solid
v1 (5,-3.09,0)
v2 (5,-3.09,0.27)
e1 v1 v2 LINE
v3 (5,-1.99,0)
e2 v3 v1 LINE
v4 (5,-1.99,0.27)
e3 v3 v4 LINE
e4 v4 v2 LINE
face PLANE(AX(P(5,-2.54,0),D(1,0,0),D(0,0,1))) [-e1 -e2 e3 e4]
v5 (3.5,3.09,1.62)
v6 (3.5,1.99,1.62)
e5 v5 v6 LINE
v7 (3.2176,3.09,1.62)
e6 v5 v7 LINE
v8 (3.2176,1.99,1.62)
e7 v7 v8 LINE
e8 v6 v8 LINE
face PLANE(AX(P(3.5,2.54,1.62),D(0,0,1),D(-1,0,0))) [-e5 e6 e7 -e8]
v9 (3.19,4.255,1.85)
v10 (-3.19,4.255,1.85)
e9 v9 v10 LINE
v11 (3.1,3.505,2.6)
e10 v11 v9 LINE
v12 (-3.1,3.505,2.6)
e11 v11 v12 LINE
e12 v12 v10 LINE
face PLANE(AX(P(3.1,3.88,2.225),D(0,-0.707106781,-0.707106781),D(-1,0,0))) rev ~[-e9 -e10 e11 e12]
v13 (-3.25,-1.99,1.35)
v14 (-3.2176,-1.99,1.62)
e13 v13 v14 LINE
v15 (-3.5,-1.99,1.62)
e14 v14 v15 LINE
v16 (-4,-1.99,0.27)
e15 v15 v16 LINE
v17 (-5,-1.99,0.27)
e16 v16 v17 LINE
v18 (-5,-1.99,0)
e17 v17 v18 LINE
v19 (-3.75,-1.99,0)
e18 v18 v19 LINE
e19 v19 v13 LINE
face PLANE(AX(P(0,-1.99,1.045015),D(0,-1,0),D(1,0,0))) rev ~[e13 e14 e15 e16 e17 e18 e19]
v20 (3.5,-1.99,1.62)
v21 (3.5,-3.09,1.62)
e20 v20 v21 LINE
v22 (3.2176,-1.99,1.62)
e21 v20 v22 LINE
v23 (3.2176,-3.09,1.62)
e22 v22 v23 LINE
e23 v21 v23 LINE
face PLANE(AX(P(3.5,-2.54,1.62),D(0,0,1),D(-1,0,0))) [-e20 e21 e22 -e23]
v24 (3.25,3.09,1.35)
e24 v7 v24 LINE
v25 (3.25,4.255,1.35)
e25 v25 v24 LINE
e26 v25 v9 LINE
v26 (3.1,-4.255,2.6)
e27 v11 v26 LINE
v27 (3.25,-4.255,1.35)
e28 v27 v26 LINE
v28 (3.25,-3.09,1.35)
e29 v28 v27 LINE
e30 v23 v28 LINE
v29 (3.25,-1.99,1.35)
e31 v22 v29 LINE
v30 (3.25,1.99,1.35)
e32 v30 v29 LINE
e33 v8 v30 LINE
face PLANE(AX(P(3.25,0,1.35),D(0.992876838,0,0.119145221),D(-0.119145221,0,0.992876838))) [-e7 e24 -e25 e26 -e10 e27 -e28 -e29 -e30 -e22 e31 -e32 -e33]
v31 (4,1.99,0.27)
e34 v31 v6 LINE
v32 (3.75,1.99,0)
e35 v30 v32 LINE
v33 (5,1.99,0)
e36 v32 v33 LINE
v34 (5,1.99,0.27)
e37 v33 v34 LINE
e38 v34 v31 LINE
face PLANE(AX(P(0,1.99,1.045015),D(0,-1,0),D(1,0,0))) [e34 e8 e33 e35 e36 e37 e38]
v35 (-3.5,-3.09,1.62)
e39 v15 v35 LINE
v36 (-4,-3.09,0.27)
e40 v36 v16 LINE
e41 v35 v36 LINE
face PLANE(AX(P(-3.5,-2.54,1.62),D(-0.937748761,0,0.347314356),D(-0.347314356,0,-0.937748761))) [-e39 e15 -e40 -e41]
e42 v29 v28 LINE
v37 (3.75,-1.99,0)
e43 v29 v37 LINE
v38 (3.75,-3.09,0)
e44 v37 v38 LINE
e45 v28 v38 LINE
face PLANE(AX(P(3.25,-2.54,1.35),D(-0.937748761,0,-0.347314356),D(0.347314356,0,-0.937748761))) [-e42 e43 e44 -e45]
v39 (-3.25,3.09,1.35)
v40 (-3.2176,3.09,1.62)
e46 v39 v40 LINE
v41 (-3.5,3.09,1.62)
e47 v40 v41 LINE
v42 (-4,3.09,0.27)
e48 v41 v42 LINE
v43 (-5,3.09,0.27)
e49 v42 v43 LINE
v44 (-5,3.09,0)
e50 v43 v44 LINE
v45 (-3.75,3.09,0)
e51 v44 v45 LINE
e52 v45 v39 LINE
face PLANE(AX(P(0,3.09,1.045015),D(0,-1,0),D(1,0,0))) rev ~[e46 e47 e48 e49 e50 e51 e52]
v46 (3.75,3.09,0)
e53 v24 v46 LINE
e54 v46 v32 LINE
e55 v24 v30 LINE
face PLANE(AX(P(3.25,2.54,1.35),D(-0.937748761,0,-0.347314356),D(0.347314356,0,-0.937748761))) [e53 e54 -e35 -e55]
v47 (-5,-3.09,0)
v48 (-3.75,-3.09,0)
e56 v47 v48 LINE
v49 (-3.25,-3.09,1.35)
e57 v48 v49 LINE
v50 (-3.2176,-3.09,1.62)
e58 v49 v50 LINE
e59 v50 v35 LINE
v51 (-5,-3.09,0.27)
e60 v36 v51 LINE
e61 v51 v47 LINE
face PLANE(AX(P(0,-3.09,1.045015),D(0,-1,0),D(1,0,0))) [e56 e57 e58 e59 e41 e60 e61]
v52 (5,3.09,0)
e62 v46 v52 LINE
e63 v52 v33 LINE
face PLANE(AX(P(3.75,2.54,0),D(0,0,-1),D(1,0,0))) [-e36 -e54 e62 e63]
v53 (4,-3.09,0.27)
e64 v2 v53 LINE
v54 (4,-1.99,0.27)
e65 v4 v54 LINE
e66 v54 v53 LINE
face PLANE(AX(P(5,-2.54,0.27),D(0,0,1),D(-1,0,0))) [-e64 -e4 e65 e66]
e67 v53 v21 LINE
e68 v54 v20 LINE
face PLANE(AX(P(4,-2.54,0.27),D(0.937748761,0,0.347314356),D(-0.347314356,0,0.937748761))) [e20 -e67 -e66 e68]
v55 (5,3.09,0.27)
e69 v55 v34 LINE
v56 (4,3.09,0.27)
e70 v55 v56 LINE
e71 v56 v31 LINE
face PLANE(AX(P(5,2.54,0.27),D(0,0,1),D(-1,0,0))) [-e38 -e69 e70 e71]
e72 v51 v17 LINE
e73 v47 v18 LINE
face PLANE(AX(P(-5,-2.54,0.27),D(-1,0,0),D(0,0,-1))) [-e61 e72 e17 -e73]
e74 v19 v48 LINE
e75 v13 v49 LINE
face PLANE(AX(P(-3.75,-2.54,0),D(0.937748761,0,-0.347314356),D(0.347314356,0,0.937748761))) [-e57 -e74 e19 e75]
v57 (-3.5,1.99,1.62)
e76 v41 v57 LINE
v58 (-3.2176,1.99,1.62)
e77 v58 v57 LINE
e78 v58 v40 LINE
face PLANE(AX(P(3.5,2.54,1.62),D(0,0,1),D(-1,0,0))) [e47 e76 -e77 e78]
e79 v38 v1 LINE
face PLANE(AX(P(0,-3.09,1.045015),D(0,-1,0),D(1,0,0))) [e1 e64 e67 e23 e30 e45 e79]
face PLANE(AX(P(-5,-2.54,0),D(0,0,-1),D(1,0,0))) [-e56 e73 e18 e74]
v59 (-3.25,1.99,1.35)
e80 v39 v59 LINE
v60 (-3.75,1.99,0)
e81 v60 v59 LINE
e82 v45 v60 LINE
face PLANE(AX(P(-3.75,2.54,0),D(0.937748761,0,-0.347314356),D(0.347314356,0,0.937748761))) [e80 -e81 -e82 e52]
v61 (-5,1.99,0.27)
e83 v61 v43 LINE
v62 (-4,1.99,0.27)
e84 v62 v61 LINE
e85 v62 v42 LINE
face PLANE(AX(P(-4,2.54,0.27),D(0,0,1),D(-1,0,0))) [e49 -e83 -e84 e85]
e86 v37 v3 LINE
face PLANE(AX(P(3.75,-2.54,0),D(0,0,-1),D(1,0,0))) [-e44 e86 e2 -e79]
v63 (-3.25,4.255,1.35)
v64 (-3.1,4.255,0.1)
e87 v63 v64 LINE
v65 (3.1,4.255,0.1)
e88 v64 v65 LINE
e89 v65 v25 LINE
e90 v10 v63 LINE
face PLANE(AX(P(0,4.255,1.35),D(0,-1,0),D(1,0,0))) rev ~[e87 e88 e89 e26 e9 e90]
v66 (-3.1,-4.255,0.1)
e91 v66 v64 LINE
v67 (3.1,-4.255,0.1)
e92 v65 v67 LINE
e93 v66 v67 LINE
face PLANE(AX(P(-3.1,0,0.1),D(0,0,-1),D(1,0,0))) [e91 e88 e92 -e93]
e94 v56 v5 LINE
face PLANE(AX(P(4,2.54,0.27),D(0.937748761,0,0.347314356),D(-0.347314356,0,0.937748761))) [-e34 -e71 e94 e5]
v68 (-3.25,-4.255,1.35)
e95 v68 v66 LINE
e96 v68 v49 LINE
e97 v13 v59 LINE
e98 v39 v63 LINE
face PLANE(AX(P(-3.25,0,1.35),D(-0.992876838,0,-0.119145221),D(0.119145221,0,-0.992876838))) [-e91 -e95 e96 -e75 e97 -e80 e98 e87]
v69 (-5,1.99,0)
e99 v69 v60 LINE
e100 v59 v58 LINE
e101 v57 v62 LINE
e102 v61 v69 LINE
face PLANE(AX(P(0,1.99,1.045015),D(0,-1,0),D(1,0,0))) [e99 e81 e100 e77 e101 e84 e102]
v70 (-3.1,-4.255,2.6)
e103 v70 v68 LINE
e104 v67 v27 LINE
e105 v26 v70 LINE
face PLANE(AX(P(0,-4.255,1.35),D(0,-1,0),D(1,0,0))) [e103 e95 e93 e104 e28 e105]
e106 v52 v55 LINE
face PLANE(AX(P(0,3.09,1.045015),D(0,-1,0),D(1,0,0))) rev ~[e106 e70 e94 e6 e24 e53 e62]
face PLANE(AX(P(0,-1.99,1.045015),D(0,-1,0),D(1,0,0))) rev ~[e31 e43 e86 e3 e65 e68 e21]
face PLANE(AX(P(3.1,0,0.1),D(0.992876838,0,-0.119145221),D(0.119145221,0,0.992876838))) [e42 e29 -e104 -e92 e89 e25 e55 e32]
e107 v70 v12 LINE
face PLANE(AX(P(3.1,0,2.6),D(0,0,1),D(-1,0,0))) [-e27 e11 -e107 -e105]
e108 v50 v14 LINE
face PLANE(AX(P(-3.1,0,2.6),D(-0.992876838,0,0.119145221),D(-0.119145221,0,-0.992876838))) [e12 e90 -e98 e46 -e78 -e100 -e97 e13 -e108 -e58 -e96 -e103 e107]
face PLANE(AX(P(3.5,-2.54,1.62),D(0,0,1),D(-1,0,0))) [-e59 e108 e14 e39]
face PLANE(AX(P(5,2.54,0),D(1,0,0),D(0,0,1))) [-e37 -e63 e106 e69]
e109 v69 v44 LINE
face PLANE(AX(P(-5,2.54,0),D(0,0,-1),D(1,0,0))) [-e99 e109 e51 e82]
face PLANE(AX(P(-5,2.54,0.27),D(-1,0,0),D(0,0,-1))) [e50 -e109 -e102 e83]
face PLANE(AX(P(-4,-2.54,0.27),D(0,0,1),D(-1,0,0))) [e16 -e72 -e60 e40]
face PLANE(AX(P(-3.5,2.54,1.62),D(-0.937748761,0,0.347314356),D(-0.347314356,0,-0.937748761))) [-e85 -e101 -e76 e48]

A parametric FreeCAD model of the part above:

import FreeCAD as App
import Part
import Sketcher
from FreeCAD import Vector


def edges_at(feature, points):
    """Names of the edges that pass closest to the given points."""
    edges = feature.Shape.Edges
    near = lambda p: min(range(len(edges)), key=lambda i: edges[i].distToShape(Part.Vertex(*p))[0])
    return sorted({f"Edge{near(p) + 1}" for p in points})


def add_polygon(sketch, points):
    """Adds a closed chain of lines whose ends are joined by coincident constraints."""
    first, n = sketch.GeometryCount, len(points)
    for a, b in zip(points, points[1:] + points[:1]):
        sketch.addGeometry(Part.LineSegment(App.Vector(*a, 0), App.Vector(*b, 0)), False)
    for i in range(n):
        sketch.addConstraint(Sketcher.Constraint("Coincident", first + i, 2, first + (i + 1) % n, 1))

doc = App.newDocument("Part")
body = doc.addObject("PartDesign::Body", "Body")

# Sketch on XZ plane
sketch1 = doc.addObject("Sketcher::SketchObject", "Sketch")
body.addObject(sketch1)
sketch1.AttachmentSupport = (doc.XZ_Plane, [""])
sketch1.MapMode = "FlatFace"
sketch1.AttachmentOffset = App.Placement(Vector(0, 0, 2.54), App.Rotation())
add_polygon(sketch1, [(-5, 0), (-3.75, 0), (-3.25, 1.35), (3.25, 1.35), (3.75, 0), (5, 0), (5, 0.27), (4, 0.27), (3.5, 1.62), (-3.5, 1.62), (-4, 0.27), (-5, 0.27)])  # lines 0-11
sketch1.addConstraint([
    Sketcher.Constraint("Horizontal", 0),
    Sketcher.Constraint("Horizontal", 2),
    Sketcher.Constraint("Horizontal", 4),
    Sketcher.Constraint("Vertical", 5),
    Sketcher.Constraint("Horizontal", 6),
    Sketcher.Constraint("Horizontal", 8),
    Sketcher.Constraint("Horizontal", 10),
    Sketcher.Constraint("Vertical", 11),
    Sketcher.Constraint("Symmetric", 0, 2, 3, 2, -1, 1),
    Sketcher.Constraint("Symmetric", 6, 2, 9, 2, -2),
    Sketcher.Constraint("Symmetric", 4, 2, 11, 2, -2),
    Sketcher.Constraint("Parallel", 3, 7),
    Sketcher.Constraint("Parallel", 1, 9),
    Sketcher.Constraint("Equal", 1, 3),
    Sketcher.Constraint("Equal", 3, 7),
    Sketcher.Constraint("DistanceX", 6, 2, 6, 1, 1.0),
    Sketcher.Constraint("DistanceX", 8, 2, 8, 1, 7.0),
    Sketcher.Constraint("DistanceX", 2, 1, 2, 2, 6.5),
    Sketcher.Constraint("DistanceX", -1, 1, 4, 2, 5.0),
    Sketcher.Constraint("DistanceY", 5, 1, 5, 2, 0.27),
    Sketcher.Constraint("DistanceY", -1, 1, 1, 2, 1.35),
])
pad1 = doc.addObject("PartDesign::Pad", "Pad")
body.addObject(pad1)
pad1.Profile = sketch1
pad1.Length = 1.1
pad1.Midplane = True
body2 = doc.addObject("PartDesign::Body", "Body001")

# Sketch on XZ plane
sketch2 = doc.addObject("Sketcher::SketchObject", "Sketch001")
body2.addObject(sketch2)
sketch2.AttachmentSupport = (doc.getObject("XZ_Plane001"), [""])
sketch2.MapMode = "FlatFace"
sketch2.AttachmentOffset = App.Placement(Vector(0, 0, -2.54), App.Rotation())
add_polygon(sketch2, [(-5, 0), (-3.75, 0), (-3.25, 1.35), (3.25, 1.35), (3.75, 0), (5, 0), (5, 0.27), (4, 0.27), (3.5, 1.62), (-3.5, 1.62), (-4, 0.27), (-5, 0.27)])  # lines 0-11
sketch2.addConstraint([
    Sketcher.Constraint("Horizontal", 0),
    Sketcher.Constraint("Horizontal", 2),
    Sketcher.Constraint("Horizontal", 4),
    Sketcher.Constraint("Vertical", 5),
    Sketcher.Constraint("Horizontal", 6),
    Sketcher.Constraint("Horizontal", 8),
    Sketcher.Constraint("Horizontal", 10),
    Sketcher.Constraint("Vertical", 11),
    Sketcher.Constraint("Symmetric", 0, 2, 3, 2, -1, 1),
    Sketcher.Constraint("Symmetric", 6, 2, 9, 2, -2),
    Sketcher.Constraint("Symmetric", 4, 2, 11, 2, -2),
    Sketcher.Constraint("Parallel", 3, 7),
    Sketcher.Constraint("Parallel", 1, 9),
    Sketcher.Constraint("Equal", 1, 3),
    Sketcher.Constraint("Equal", 3, 7),
    Sketcher.Constraint("DistanceX", 6, 2, 6, 1, 1.0),
    Sketcher.Constraint("DistanceX", 8, 2, 8, 1, 7.0),
    Sketcher.Constraint("DistanceX", 2, 1, 2, 2, 6.5),
    Sketcher.Constraint("DistanceX", -1, 1, 4, 2, 5.0),
    Sketcher.Constraint("DistanceY", 5, 1, 5, 2, 0.27),
    Sketcher.Constraint("DistanceY", -1, 1, 1, 2, 1.35),
])
pad2 = doc.addObject("PartDesign::Pad", "Pad001")
body2.addObject(pad2)
pad2.Profile = sketch2
pad2.Length = 1.1
pad2.Midplane = True
body3 = doc.addObject("PartDesign::Body", "Body002")

# Sketch on XZ plane
sketch3 = doc.addObject("Sketcher::SketchObject", "Sketch002")
body3.addObject(sketch3)
sketch3.AttachmentSupport = (doc.getObject("XZ_Plane002"), [""])
sketch3.MapMode = "FlatFace"
add_polygon(sketch3, [(-3.1, 0.1), (3.1, 0.1), (3.2, 1.4), (3.1, 2.6), (-3.1, 2.6), (-3.2, 1.4)])  # lines 0-5
sketch3.addConstraint([
    Sketcher.Constraint("Horizontal", 0),
    Sketcher.Constraint("Horizontal", 3),
    Sketcher.Constraint("Symmetric", 1, 2, 4, 2, -2),
    Sketcher.Constraint("Parallel", 1, 4),
    Sketcher.Constraint("Parallel", 2, 5),
    Sketcher.Constraint("Vertical", 0, 2, 2, 2),
    Sketcher.Constraint("Vertical", 3, 2, 5, 2),
    Sketcher.Constraint("DistanceX", 0, 1, 0, 2, 6.2),
    Sketcher.Constraint("DistanceY", -1, 1, 0, 2, 0.1),
    Sketcher.Constraint("DistanceY", -1, 1, 2, 2, 2.6),
    Sketcher.Constraint("DistanceX", 4, 2, 1, 2, 6.5),
])
pad3 = doc.addObject("PartDesign::Pad", "Pad002")
body3.addObject(pad3)
pad3.Profile = sketch3
pad3.Length = 8.51
pad3.Midplane = True
doc.recompute()

chamfer = doc.addObject("PartDesign::Chamfer", "Chamfer")
body3.addObject(chamfer)
chamfer.Base = (pad3, edges_at(pad3, [(0, 4.255, 2.6)]))
chamfer.Size = 0.75
doc.recompute()

boolean = doc.addObject("PartDesign::Boolean", "Boolean")
body3.addObject(boolean)
boolean.Type = "Fuse"
boolean.addObjects([body])
doc.recompute()

boolean2 = doc.addObject("PartDesign::Boolean", "Boolean001")
body3.addObject(boolean2)
boolean2.Type = "Fuse"
boolean2.addObjects([body2])

doc.recompute()
